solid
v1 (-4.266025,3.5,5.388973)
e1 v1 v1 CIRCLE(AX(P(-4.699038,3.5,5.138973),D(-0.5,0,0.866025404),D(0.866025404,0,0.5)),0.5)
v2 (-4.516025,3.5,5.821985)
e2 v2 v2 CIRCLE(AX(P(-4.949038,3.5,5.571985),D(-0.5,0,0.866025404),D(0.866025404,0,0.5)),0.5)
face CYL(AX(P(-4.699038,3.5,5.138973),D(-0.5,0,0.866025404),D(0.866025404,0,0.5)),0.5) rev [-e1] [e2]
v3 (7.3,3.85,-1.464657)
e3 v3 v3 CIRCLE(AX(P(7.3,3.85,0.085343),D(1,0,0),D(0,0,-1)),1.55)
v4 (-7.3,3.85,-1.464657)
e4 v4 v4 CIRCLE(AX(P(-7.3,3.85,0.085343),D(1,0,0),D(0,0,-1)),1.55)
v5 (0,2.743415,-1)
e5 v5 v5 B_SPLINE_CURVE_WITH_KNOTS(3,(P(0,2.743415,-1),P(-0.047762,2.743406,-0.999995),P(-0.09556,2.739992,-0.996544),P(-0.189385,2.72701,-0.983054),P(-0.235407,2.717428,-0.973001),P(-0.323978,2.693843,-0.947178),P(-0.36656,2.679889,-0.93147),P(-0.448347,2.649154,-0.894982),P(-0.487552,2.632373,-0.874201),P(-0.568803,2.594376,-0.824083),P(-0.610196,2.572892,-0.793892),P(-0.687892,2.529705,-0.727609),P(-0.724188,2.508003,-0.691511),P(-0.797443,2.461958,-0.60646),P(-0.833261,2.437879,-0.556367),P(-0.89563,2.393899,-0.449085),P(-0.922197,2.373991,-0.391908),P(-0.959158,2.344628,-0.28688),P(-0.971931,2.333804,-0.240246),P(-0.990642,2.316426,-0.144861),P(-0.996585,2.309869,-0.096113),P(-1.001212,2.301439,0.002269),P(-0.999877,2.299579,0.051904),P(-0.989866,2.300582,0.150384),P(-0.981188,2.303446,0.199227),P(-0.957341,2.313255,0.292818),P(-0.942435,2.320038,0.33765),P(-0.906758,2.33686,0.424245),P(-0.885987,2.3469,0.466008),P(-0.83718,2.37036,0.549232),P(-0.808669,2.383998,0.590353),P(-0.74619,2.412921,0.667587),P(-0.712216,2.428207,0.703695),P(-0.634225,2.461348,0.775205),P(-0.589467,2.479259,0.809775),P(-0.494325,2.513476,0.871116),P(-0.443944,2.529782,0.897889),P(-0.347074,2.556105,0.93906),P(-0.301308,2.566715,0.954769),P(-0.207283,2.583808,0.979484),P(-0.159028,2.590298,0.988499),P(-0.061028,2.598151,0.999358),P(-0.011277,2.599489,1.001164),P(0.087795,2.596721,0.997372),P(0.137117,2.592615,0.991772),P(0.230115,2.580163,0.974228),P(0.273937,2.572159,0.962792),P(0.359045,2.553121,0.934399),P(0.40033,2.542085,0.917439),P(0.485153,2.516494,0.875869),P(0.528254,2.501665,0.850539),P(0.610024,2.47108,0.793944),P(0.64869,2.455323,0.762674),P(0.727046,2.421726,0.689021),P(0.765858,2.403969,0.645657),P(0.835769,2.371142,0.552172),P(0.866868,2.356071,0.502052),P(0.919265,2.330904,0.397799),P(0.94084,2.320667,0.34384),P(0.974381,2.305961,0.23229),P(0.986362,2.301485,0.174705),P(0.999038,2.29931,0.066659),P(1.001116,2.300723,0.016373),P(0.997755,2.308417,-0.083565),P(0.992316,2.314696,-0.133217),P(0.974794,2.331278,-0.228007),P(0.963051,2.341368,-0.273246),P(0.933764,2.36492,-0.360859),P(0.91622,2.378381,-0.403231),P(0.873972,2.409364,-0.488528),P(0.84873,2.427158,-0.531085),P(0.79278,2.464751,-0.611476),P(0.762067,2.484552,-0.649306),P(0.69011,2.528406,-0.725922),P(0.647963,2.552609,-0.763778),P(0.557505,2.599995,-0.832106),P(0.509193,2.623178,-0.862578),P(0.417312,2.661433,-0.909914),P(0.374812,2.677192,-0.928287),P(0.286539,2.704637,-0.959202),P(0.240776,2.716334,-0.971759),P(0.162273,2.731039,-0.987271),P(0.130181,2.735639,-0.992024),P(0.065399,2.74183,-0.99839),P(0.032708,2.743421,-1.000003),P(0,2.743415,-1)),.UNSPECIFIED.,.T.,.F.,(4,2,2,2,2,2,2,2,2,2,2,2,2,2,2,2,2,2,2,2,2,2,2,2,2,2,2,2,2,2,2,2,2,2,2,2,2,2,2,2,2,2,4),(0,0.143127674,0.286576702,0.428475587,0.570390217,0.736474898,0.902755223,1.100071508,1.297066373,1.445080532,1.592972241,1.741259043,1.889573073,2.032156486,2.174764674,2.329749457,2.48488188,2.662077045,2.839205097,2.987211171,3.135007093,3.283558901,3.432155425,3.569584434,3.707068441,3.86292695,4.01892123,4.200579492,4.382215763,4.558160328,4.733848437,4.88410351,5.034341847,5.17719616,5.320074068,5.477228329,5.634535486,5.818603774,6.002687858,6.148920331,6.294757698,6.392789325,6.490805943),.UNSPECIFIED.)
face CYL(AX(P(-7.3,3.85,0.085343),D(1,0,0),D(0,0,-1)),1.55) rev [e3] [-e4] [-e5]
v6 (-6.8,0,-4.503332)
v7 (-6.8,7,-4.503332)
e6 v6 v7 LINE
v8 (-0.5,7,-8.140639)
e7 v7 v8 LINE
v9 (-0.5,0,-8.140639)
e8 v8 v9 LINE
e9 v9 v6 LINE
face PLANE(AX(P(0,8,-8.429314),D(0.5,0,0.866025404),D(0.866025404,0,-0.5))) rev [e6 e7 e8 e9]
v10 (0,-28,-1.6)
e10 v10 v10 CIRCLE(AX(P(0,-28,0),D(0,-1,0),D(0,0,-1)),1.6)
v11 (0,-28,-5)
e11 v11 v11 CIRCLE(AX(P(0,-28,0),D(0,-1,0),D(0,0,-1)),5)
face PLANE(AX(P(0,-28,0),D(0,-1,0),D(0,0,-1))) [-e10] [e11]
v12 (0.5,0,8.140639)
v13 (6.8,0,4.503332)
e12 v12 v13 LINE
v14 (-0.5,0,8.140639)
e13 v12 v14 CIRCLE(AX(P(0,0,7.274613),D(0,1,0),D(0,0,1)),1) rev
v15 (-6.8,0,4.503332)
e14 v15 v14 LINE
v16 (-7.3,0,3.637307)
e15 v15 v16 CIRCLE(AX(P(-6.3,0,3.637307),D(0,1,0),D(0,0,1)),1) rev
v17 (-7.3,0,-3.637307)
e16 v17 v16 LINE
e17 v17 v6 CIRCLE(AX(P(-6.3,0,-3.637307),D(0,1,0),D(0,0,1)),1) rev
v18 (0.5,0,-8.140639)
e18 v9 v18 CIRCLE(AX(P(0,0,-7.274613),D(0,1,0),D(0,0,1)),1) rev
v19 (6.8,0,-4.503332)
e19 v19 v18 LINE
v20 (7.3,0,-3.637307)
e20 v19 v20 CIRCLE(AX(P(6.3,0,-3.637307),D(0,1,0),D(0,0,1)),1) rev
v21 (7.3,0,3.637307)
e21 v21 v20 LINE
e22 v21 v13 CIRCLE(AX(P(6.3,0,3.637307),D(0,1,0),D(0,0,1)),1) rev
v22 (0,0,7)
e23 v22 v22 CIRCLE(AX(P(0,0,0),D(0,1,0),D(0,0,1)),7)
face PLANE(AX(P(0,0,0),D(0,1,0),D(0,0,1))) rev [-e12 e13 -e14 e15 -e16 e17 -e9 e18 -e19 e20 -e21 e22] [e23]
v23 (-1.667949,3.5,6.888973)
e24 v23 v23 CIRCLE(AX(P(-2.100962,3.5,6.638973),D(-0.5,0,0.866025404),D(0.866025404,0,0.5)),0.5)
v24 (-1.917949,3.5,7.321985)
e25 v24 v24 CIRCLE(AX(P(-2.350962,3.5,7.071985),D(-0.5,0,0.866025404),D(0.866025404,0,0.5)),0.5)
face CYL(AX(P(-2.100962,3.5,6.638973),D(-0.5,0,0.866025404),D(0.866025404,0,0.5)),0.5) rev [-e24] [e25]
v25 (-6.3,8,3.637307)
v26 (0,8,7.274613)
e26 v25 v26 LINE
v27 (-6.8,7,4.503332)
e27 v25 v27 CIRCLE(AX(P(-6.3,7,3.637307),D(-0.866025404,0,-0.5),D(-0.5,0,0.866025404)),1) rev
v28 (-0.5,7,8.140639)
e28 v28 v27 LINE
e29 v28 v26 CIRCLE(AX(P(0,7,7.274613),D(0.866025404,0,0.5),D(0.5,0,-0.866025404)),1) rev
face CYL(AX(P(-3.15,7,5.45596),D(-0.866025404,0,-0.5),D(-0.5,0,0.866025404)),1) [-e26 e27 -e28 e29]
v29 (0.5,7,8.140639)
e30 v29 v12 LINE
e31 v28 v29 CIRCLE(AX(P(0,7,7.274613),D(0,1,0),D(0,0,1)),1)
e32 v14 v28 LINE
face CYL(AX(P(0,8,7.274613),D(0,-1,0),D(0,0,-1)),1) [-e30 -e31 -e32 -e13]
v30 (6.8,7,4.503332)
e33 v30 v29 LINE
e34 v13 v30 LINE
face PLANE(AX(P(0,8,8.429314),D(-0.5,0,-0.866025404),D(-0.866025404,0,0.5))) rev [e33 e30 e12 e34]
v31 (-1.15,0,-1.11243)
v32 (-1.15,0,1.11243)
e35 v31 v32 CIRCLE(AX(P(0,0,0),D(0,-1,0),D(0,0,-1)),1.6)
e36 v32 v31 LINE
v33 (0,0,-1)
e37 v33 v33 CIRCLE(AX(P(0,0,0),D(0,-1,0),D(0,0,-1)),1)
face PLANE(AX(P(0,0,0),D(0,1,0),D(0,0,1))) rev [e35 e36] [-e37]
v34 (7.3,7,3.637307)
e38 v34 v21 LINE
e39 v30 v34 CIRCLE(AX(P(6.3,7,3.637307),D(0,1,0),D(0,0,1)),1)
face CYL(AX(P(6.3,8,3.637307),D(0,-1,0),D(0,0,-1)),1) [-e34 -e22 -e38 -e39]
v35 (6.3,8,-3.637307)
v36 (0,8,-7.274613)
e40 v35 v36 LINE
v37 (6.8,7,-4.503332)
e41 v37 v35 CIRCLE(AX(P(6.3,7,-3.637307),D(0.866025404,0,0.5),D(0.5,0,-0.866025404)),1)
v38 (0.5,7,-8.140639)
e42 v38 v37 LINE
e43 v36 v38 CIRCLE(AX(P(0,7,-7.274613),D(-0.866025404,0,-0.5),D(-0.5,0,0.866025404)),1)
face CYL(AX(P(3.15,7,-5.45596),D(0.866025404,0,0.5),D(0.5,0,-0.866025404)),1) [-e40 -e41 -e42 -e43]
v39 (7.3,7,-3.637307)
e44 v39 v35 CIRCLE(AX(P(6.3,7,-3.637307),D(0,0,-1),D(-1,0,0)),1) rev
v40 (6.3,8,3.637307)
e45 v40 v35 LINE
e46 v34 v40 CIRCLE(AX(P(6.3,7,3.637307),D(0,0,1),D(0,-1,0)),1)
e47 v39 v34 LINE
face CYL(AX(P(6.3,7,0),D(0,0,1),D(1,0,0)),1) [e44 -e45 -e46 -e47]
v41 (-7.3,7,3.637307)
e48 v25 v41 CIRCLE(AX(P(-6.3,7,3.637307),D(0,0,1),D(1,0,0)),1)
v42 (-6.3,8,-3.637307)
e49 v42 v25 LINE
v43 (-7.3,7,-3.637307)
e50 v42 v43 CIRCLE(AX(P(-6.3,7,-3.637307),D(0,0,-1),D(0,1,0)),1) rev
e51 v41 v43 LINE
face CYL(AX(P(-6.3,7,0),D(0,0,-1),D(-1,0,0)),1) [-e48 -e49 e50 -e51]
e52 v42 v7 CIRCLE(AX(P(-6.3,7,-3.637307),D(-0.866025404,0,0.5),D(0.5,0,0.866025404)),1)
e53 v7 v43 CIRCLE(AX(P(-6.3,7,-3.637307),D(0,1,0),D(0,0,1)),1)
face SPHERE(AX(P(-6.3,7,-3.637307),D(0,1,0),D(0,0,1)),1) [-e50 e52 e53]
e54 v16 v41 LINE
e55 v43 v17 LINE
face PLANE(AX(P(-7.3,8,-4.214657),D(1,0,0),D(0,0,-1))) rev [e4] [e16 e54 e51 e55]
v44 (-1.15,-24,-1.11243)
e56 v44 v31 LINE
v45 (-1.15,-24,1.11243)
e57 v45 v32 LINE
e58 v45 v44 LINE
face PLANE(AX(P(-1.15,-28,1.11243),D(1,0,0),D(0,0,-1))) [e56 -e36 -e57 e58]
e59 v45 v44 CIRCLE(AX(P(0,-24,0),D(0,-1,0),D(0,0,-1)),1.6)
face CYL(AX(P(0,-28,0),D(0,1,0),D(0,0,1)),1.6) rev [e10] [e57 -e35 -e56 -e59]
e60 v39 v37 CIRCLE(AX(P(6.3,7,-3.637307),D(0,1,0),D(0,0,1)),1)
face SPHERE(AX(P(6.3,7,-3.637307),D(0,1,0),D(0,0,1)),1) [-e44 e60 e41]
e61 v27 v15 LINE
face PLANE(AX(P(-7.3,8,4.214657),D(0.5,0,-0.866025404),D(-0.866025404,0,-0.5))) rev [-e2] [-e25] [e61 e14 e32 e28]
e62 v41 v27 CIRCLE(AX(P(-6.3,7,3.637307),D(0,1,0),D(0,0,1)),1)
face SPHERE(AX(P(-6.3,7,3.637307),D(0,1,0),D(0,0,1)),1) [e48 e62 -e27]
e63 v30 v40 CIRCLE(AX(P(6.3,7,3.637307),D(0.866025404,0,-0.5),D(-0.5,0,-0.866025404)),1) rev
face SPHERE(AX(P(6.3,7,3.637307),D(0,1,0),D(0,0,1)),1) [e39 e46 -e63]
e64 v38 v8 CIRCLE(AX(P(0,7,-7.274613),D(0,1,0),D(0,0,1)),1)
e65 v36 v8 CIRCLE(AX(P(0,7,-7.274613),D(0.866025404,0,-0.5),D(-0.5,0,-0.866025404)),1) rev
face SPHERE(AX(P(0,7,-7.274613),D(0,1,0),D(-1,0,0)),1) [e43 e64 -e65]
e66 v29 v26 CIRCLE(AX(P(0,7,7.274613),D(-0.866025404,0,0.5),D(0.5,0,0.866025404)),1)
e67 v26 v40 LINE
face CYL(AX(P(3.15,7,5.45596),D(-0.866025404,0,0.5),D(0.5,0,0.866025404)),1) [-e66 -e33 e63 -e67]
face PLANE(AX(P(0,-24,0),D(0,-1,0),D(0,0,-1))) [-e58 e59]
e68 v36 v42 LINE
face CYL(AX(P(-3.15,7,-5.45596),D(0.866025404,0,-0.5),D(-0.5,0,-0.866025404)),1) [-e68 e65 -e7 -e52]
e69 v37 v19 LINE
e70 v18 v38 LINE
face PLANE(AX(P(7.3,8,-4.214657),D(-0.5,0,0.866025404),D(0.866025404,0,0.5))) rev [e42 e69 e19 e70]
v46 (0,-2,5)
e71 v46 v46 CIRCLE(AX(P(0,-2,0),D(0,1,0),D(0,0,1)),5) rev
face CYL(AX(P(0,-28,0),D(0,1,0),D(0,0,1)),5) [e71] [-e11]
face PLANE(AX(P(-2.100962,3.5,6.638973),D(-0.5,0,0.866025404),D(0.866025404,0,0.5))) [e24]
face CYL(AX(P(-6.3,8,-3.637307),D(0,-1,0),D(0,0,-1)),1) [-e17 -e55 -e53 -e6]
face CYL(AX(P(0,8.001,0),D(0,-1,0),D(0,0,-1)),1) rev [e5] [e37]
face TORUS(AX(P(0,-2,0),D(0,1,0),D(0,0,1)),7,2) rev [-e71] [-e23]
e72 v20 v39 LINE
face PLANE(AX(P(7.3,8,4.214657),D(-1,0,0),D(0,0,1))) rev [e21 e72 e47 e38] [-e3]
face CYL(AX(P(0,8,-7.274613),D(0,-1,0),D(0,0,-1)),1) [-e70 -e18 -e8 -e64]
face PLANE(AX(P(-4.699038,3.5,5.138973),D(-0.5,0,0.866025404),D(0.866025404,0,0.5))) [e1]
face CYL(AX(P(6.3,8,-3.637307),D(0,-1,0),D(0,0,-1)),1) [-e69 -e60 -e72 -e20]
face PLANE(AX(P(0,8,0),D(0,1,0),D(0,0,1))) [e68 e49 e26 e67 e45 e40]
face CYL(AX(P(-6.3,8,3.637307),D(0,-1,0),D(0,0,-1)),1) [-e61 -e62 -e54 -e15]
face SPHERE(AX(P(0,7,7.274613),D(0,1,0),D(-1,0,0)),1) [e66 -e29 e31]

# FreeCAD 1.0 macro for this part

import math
import FreeCAD as App
import Part
import Sketcher
from FreeCAD import Vector
Q = App.Units.Quantity


def edges_at(feature, points):
    """Names of the edges that pass closest to the given points."""
    edges = feature.Shape.Edges
    near = lambda p: min(range(len(edges)), key=lambda i: edges[i].distToShape(Part.Vertex(*p))[0])
    return sorted({f"Edge{near(p) + 1}" for p in points})

doc = App.newDocument("Part")
body = doc.addObject("PartDesign::Body", "Body")

# Sketch on XZ plane
sketch1 = body.newObject("Sketcher::SketchObject", "Sketch")
sketch1.AttachmentSupport = (doc.getObject("XZ_Plane"), [""])
sketch1.MapMode = "FlatFace"
sketch1.addGeometry([
    Part.LineSegment(Vector(7, 4, 0), Vector(7, -4, 0)),  # 0
    Part.LineSegment(Vector(7, -4, 0), Vector(0, -8, 0)),  # 1
    Part.LineSegment(Vector(0, -8, 0), Vector(-7, -4, 0)),  # 2
    Part.LineSegment(Vector(-7, -4, 0), Vector(-7, 4, 0)),  # 3
    Part.LineSegment(Vector(-7, 4, 0), Vector(0, 8, 0)),  # 4
    Part.LineSegment(Vector(0, 8, 0), Vector(7, 4, 0)),  # 5
], False)
sketch1.addConstraint([
    Sketcher.Constraint("Coincident", 0, 2, 1, 1),
    Sketcher.Constraint("Coincident", 1, 2, 2, 1),
    Sketcher.Constraint("Coincident", 2, 2, 3, 1),
    Sketcher.Constraint("Coincident", 3, 2, 4, 1),
    Sketcher.Constraint("Coincident", 4, 2, 5, 1),
    Sketcher.Constraint("Coincident", 5, 2, 0, 1),
    Sketcher.Constraint("Vertical", 0),
    Sketcher.Constraint("Vertical", 3),
    Sketcher.Constraint("Symmetric", 0, 2, 3, 2, -1, 1),
    Sketcher.Constraint("Symmetric", 1, 2, 4, 2, -1, 1),
    Sketcher.Constraint("PointOnObject", 1, 2, -2),
    Sketcher.Constraint("Parallel", 2, 5),
    Sketcher.Constraint("Horizontal", 0, 2, 2, 2),
    Sketcher.Constraint("Angle", 1, Q("-150 deg")),
    Sketcher.Constraint("DistanceX", -1, 1, 0, 2, 7.3),
    Sketcher.Constraint("DistanceY", 0, 2, 0, 1, 8.429314),
])
pad1 = body.newObject("PartDesign::Pad", "Pad")
pad1.Profile = sketch1
pad1.Length = 8
pad1.Reversed = True

# Sketch on XZ plane
sketch2 = body.newObject("Sketcher::SketchObject", "Sketch001")
sketch2.AttachmentSupport = (doc.getObject("XZ_Plane"), [""])
sketch2.MapMode = "FlatFace"
sketch2.addGeometry([
    Part.Circle(Vector(0, 0, 0), Vector(0, 0, 1), 5),
    Part.LineSegment(Vector(-1.1, -1.1, 0), Vector(-1.1, 1.1, 0)),
    Part.ArcOfCircle(Part.Circle(Vector(0, 0, 0), Vector(0, 0, 1), 1.6), math.radians(-136), math.radians(136)),
], False)
sketch2.addConstraint([
    Sketcher.Constraint("Coincident", 1, 1, 2, 1),
    Sketcher.Constraint("Coincident", 2, 2, 1, 2),
    Sketcher.Constraint("Vertical", 1),
    Sketcher.Constraint("Coincident", 0, 3, -1, 1),
    Sketcher.Constraint("Coincident", 2, 3, -1, 1),
    Sketcher.Constraint("Diameter", 0, 10.0),
    Sketcher.Constraint("Radius", 2, 1.6),
    Sketcher.Constraint("DistanceX", 1, 1, -1, 1, 1.15),
])
pad2 = body.newObject("PartDesign::Pad", "Pad001")
pad2.Profile = sketch2
pad2.Length = 28
doc.recompute()

fillet = body.newObject("PartDesign::Fillet", "Fillet")
fillet.Base = (pad2, edges_at(pad2, [(-5, 0, 0)]))
fillet.Radius = 2

# Sketch on YZ plane
sketch3 = body.newObject("Sketcher::SketchObject", "Sketch002")
sketch3.AttachmentSupport = (doc.getObject("YZ_Plane"), [""])
sketch3.MapMode = "FlatFace"
sketch3.AttachmentOffset = App.Placement(Vector(0, 0, 7.3), App.Rotation())
sketch3.addGeometry(Part.Circle(Vector(3.9, 0.1, 0), Vector(0, 0, 1), 1.6), False)
sketch3.addConstraint([
    Sketcher.Constraint("Diameter", 0, 3.1),
    Sketcher.Constraint("DistanceX", -1, 1, 0, 3, 3.85),
    Sketcher.Constraint("DistanceY", -1, 1, 0, 3, 0.085343),
])
pocket1 = body.newObject("PartDesign::Pocket", "Pocket")
pocket1.Profile = sketch3
pocket1.Type = "ThroughAll"
doc.recompute()

fillet2 = body.newObject("PartDesign::Fillet", "Fillet001")
fillet2.Base = (pocket1, edges_at(pocket1, [
    (0, 4, 8.429),
    (-7.3, 4, 4.215),
    (-7.3, 4, -4.215),
    (0, 4, -8.429),
    (7.3, 4, -4.215),
    (7.3, 4, 4.215),
    (3.65, 8, -6.322),
    (-3.65, 8, -6.322),
    (-7.3, 8, 0),
    (-3.65, 8, 6.322),
    (3.65, 8, 6.322),
    (7.3, 8, 0),
]))
fillet2.Radius = 1

# Sketch on XZ plane
sketch4 = body.newObject("Sketcher::SketchObject", "Sketch003")
sketch4.AttachmentSupport = (doc.getObject("XZ_Plane"), [""])
sketch4.MapMode = "FlatFace"
sketch4.AttachmentOffset = App.Placement(Vector(0, 0, 28), App.Rotation())
sketch4.addGeometry(Part.Circle(Vector(0, 0, 0), Vector(0, 0, 1), 1.6), False)
sketch4.addConstraint([
    Sketcher.Constraint("Coincident", 0, 3, -1, 1),
    Sketcher.Constraint("Diameter", 0, 3.2),
])
pocket2 = body.newObject("PartDesign::Pocket", "Pocket001")
pocket2.Profile = sketch4
pocket2.Length = 4

# Sketch on an angled plane
sketch5 = body.newObject("Sketcher::SketchObject", "Sketch004")
sketch5.Placement = App.Placement(Vector(-3.65, 0, 6.321985), App.Rotation(Vector(0.866025404, 0, 0.5), Vector(0, 1, 0), Vector(-0.5, 0, 0.866025404), "ZXY"))
sketch5.addGeometry([
    Part.Circle(Vector(-1.5, 3.5, 0), Vector(0, 0, 1), 0.5),
    Part.Circle(Vector(1.5, 3.5, 0), Vector(0, 0, 1), 0.5),
], False)
sketch5.addConstraint([
    Sketcher.Constraint("Equal", 0, 1),
    Sketcher.Constraint("Symmetric", 0, 3, 1, 3, -2),
    Sketcher.Constraint("Diameter", 0, 1.0),
    Sketcher.Constraint("DistanceX", 0, 3, 1, 3, 3.0),
    Sketcher.Constraint("DistanceY", -1, 1, 0, 3, 3.5),
])
pocket3 = body.newObject("PartDesign::Pocket", "Pocket002")
pocket3.Profile = sketch5
pocket3.Length = 0.5

# Sketch on XZ plane
sketch6 = body.newObject("Sketcher::SketchObject", "Sketch005")
sketch6.AttachmentSupport = (doc.getObject("XZ_Plane"), [""])
sketch6.MapMode = "FlatFace"
sketch6.addGeometry(Part.Circle(Vector(0, 0, 0), Vector(0, 0, 1), 1), False)
sketch6.addConstraint([
    Sketcher.Constraint("Coincident", 0, 3, -1, 1),
    Sketcher.Constraint("Diameter", 0, 2.0),
])
pocket4 = body.newObject("PartDesign::Pocket", "Pocket003")
pocket4.Profile = sketch6
pocket4.Type = "UpToFirst"

doc.recompute()
